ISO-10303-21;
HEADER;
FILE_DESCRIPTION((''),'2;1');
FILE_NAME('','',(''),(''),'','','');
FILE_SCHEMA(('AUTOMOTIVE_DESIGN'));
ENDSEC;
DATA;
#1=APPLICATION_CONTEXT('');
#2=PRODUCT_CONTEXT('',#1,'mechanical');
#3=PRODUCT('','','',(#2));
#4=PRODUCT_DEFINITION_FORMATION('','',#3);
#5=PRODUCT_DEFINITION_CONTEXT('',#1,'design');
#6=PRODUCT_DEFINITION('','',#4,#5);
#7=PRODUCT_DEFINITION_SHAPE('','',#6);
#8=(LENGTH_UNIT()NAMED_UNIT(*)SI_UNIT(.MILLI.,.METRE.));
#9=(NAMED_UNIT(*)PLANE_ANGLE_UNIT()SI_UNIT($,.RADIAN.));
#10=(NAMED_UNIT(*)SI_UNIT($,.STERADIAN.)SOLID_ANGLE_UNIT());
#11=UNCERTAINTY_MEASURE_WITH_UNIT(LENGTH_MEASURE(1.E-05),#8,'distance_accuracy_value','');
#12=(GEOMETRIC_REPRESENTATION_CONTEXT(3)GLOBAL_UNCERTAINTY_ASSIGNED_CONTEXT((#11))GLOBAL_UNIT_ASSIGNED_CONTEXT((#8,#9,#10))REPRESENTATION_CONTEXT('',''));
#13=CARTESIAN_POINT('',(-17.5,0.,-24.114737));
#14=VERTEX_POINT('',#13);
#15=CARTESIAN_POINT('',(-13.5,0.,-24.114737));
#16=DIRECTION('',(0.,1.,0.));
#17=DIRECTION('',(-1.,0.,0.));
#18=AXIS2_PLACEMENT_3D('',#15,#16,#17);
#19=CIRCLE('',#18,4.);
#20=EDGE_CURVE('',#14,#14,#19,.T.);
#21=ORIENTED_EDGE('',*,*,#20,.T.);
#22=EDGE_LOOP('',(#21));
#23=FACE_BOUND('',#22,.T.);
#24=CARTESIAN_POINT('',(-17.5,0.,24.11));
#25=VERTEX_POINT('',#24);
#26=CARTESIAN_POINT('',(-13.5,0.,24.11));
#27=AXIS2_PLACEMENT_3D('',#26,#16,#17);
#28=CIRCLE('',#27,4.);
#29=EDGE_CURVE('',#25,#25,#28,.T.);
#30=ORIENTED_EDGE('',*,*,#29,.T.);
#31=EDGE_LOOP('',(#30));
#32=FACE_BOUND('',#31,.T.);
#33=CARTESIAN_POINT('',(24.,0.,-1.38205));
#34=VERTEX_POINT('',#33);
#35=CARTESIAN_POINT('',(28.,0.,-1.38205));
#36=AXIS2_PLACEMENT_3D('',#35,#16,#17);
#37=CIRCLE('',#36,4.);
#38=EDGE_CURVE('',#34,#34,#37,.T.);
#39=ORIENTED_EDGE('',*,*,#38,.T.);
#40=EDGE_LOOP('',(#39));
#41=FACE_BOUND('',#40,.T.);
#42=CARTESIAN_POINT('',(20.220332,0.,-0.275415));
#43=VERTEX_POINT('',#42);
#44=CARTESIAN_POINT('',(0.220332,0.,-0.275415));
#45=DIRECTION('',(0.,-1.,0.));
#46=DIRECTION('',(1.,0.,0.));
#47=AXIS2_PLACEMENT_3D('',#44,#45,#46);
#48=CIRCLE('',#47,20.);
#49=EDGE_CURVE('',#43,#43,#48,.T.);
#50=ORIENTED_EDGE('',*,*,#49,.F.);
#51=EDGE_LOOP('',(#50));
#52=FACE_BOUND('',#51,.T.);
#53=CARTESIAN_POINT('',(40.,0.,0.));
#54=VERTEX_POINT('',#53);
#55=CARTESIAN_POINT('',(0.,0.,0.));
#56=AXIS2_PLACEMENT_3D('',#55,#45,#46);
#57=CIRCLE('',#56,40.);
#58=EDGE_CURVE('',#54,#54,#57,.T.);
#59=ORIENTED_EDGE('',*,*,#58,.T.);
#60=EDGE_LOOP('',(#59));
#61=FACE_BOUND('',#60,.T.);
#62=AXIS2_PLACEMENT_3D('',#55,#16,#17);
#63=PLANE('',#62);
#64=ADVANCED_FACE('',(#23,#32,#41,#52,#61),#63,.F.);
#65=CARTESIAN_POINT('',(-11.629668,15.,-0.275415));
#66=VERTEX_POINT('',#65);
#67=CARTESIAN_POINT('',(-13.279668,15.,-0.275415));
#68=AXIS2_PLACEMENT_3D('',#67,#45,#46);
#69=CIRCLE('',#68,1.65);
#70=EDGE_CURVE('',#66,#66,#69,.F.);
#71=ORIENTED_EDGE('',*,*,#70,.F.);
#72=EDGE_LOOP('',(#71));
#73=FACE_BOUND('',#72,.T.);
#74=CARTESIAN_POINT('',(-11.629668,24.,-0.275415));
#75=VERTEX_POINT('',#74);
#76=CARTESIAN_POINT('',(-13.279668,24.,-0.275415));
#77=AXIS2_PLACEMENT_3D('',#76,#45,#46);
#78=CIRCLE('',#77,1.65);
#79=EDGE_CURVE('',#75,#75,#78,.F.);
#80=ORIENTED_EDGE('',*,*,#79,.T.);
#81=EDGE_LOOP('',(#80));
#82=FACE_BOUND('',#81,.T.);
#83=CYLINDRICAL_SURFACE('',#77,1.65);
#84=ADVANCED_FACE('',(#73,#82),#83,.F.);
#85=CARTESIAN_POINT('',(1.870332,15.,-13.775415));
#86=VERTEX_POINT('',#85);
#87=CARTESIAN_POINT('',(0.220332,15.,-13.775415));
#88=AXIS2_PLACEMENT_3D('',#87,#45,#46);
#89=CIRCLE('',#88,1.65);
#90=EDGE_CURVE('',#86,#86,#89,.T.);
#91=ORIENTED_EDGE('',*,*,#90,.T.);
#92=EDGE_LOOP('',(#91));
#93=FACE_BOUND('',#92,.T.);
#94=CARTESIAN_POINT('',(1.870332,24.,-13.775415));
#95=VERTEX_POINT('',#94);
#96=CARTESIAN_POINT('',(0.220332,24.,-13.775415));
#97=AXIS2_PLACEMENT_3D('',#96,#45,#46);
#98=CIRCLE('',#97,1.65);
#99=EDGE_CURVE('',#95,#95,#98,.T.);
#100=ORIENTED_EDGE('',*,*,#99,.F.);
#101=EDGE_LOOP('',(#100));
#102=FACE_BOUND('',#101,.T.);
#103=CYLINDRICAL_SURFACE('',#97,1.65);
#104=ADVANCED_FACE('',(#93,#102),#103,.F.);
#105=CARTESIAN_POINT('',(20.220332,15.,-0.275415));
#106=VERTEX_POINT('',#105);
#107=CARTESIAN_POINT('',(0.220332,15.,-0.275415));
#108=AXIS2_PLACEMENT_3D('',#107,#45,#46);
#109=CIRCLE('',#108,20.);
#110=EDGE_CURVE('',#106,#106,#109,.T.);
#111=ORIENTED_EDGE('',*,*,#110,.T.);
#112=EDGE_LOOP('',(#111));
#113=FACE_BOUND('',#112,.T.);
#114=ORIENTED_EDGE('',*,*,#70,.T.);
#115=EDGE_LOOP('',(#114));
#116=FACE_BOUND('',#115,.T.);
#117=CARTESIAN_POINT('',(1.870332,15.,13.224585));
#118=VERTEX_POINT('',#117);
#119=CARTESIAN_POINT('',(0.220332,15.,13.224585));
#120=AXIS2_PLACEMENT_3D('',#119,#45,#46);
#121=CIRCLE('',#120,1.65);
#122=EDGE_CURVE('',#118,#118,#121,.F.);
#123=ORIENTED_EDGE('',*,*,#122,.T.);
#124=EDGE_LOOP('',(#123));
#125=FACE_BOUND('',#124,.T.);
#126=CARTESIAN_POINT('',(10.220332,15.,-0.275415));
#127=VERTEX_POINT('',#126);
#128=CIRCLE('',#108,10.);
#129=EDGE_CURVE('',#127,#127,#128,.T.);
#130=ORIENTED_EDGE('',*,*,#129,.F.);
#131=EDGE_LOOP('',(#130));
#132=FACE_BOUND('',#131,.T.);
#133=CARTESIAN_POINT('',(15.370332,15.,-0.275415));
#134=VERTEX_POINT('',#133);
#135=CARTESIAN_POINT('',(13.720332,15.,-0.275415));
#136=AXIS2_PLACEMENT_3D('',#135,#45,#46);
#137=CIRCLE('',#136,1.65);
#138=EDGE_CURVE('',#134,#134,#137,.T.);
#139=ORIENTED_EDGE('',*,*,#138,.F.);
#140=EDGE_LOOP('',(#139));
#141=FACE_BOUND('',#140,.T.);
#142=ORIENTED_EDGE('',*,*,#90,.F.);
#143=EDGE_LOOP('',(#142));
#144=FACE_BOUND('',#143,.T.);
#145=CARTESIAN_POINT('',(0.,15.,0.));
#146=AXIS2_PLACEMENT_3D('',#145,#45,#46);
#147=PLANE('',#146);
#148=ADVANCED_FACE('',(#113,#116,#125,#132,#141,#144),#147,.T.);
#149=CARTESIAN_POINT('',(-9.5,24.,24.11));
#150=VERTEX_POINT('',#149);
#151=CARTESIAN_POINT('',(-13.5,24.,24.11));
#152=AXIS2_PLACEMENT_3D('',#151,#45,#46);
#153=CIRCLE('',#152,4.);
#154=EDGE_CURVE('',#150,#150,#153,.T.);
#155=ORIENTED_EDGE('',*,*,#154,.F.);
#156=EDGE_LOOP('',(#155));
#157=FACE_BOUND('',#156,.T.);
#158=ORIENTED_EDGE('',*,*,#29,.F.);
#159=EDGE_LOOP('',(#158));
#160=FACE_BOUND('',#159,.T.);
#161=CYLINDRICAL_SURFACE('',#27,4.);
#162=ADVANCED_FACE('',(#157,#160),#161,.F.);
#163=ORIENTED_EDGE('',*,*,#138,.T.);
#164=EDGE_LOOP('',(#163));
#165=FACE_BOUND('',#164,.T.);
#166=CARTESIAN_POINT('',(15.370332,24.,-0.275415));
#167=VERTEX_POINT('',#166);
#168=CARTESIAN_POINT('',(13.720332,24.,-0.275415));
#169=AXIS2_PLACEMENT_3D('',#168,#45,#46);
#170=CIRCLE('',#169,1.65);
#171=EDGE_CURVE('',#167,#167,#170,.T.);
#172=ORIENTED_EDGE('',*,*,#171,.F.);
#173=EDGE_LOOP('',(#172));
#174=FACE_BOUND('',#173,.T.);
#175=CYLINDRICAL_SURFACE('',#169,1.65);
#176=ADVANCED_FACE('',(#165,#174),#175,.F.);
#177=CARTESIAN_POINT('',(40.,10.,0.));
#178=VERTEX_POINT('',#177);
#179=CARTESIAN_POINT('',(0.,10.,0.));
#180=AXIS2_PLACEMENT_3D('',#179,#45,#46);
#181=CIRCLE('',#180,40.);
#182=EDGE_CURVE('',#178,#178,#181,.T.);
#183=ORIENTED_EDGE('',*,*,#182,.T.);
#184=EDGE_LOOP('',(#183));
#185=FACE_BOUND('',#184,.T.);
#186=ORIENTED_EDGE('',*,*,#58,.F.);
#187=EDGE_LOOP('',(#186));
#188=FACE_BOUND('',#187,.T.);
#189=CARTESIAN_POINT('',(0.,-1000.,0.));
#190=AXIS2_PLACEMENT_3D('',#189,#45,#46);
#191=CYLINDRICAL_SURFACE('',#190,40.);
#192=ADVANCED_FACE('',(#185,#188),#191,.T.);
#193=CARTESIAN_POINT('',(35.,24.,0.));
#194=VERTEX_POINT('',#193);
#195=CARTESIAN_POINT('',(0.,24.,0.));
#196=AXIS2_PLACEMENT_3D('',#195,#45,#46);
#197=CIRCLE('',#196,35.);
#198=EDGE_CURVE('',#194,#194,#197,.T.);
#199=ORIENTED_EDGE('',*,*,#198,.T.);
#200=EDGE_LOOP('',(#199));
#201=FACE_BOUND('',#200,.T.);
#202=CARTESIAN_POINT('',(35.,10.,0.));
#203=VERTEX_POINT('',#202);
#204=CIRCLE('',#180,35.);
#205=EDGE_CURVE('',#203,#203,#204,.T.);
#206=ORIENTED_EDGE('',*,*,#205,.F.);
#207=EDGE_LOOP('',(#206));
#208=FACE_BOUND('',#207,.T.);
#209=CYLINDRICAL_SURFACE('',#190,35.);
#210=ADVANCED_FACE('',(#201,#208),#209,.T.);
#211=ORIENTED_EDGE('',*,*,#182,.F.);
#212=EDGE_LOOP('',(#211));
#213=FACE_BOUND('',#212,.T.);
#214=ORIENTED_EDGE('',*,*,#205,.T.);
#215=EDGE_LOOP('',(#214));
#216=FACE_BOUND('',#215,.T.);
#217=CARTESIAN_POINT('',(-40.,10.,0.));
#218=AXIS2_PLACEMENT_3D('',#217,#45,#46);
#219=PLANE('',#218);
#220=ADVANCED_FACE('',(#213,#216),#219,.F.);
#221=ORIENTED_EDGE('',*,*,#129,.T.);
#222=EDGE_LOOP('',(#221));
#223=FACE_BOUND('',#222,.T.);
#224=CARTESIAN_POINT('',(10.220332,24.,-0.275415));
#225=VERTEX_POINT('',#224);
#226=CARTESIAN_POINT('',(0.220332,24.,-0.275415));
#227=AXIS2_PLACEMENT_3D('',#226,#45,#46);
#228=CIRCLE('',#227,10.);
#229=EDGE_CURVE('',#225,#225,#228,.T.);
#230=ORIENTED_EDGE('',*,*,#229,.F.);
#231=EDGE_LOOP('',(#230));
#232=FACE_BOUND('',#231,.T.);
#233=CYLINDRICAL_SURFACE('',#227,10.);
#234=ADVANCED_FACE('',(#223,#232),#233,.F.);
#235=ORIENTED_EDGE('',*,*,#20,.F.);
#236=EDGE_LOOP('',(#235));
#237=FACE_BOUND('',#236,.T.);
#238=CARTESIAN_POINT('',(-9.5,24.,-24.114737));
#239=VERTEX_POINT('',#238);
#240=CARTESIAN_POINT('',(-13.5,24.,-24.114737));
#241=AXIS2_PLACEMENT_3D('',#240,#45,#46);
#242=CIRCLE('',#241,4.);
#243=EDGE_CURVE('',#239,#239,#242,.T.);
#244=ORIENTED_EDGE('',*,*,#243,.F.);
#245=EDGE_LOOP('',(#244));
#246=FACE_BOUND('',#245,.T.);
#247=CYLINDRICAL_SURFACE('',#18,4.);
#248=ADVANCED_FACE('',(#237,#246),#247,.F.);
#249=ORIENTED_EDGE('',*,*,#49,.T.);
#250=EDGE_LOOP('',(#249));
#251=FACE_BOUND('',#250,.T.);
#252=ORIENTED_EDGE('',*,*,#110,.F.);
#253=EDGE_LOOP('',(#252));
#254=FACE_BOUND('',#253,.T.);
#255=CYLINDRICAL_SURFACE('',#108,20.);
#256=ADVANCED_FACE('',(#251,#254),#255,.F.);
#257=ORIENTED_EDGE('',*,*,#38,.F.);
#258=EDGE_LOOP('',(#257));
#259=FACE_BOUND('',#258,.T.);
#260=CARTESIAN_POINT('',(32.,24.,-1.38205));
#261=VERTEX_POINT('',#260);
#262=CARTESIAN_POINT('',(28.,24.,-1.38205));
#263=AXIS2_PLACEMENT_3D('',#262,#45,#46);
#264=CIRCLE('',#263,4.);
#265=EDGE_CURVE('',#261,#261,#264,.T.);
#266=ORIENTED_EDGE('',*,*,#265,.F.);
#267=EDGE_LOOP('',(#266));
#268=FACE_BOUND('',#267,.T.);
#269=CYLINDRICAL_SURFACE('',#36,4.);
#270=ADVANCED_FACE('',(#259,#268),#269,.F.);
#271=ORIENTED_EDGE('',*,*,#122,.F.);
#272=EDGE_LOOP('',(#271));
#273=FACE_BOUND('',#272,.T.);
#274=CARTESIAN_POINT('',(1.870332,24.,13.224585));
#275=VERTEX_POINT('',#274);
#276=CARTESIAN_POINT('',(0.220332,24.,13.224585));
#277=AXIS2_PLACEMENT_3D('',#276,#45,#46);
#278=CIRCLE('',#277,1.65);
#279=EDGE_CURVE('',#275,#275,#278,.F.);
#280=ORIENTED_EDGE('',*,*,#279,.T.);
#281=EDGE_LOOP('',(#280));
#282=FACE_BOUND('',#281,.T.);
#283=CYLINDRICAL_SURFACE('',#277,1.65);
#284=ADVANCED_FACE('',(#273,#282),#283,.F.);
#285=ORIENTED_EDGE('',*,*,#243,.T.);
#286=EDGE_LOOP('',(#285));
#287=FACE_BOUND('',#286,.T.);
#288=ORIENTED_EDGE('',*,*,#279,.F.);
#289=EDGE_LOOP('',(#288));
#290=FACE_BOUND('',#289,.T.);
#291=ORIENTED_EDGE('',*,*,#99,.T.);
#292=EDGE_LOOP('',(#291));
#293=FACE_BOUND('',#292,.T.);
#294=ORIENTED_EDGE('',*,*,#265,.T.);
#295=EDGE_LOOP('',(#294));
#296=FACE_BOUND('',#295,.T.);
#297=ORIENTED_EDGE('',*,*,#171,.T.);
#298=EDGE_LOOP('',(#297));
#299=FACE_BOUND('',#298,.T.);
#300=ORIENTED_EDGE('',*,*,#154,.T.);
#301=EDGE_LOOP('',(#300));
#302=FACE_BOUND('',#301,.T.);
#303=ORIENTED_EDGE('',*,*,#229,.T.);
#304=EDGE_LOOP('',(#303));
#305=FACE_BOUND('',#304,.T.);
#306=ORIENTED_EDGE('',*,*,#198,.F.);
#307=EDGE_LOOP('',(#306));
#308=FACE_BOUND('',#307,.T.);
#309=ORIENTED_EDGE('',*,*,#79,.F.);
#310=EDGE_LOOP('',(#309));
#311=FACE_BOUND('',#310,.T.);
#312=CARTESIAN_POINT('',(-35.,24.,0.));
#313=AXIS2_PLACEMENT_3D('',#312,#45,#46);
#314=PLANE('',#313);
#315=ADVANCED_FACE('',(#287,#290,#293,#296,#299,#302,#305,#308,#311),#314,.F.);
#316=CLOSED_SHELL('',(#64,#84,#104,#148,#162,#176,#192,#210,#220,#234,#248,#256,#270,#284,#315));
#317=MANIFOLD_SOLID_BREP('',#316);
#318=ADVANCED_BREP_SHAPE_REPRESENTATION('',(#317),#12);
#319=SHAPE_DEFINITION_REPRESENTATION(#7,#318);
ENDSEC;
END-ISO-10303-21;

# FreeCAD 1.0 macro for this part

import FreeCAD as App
import Part
import Sketcher

V = App.Vector

doc = App.newDocument("Part")
body = doc.addObject("PartDesign::Body", "Body")

# Sketch on XY plane
sketch1 = body.newObject("Sketcher::SketchObject", "Sketch")
sketch1.AttachmentSupport = (doc.getObject("XY_Plane"), [""])
sketch1.MapMode = "FlatFace"
sketch1.addGeometry([
    Part.LineSegment(V(-35, 10, 0), V(-40, 10, 0)),  # 0
    Part.LineSegment(V(-40, 10, 0), V(-40, 0, 0)),  # 1
    Part.LineSegment(V(-40, 0, 0), V(0, 0, 0)),  # 2
    Part.LineSegment(V(0, 0, 0), V(0, 24, 0)),  # 3
    Part.LineSegment(V(0, 24, 0), V(-35, 24, 0)),  # 4
    Part.LineSegment(V(-35, 24, 0), V(-35, 10, 0)),  # 5
], False)
sketch1.addConstraint([
    Sketcher.Constraint("Coincident", 0, 2, 1, 1),
    Sketcher.Constraint("Coincident", 1, 2, 2, 1),
    Sketcher.Constraint("Coincident", 2, 2, 3, 1),
    Sketcher.Constraint("Coincident", 3, 2, 4, 1),
    Sketcher.Constraint("Coincident", 4, 2, 5, 1),
    Sketcher.Constraint("Coincident", 5, 2, 0, 1),
    Sketcher.Constraint("Horizontal", 0),
    Sketcher.Constraint("Vertical", 1),
    Sketcher.Constraint("Horizontal", 2),
    Sketcher.Constraint("Vertical", 3),
    Sketcher.Constraint("Horizontal", 4),
    Sketcher.Constraint("Vertical", 5),
    Sketcher.Constraint("Coincident", 2, 2, -1, 1),
    Sketcher.Constraint("DistanceX", 0, 2, 0, 1, 5.0),
    Sketcher.Constraint("DistanceX", 2, 1, 2, 2, 40.0),
    Sketcher.Constraint("DistanceY", 1, 2, 1, 1, 10.0),
    Sketcher.Constraint("DistanceY", 3, 1, 3, 2, 24.0),
])
revolution = body.newObject("PartDesign::Revolution", "Revolution")
revolution.Profile = sketch1
revolution.ReferenceAxis = (sketch1, ["V_Axis"])
revolution.Angle = 360

# Sketch on XZ plane
sketch2 = body.newObject("Sketcher::SketchObject", "Sketch001")
sketch2.AttachmentSupport = (doc.getObject("XZ_Plane"), [""])
sketch2.MapMode = "FlatFace"
sketch2.addGeometry([
    Part.Circle(V(0.220332, -0.275415, 0), V(0, 0, 1), 10),  # 0
    Part.Circle(V(13.720332, -0.275415, 0), V(0, 0, 1), 1.65),  # 1
    Part.Circle(V(0.220332, -13.775415, 0), V(0, 0, 1), 1.65),  # 2
    Part.Circle(V(-13.279668, -0.275415, 0), V(0, 0, 1), 1.65),  # 3
    Part.Circle(V(0.220332, 13.224585, 0), V(0, 0, 1), 1.65),  # 4
], False)
sketch2.addConstraint([
    Sketcher.Constraint("Equal", 1, 2),
    Sketcher.Constraint("Equal", 2, 3),
    Sketcher.Constraint("Equal", 3, 4),
    Sketcher.Constraint("Horizontal", 0, 3, 1, 3),
    Sketcher.Constraint("Horizontal", 1, 3, 3, 3),
    Sketcher.Constraint("Vertical", 0, 3, 2, 3),
    Sketcher.Constraint("Vertical", 2, 3, 4, 3),
    Sketcher.Constraint("Diameter", 0, 20.0),
    Sketcher.Constraint("Diameter", 1, 3.3),
    Sketcher.Constraint("DistanceX", 3, 3, 1, 3, 27.0),
    Sketcher.Constraint("DistanceY", 2, 3, 4, 3, 27.0),
    Sketcher.Constraint("DistanceX", 0, 3, 1, 3, 13.5),
    Sketcher.Constraint("DistanceY", 2, 3, 0, 3, 13.5),
    Sketcher.Constraint("DistanceX", -1, 1, 0, 3, 0.220332),
    Sketcher.Constraint("DistanceY", 0, 3, -1, 1, 0.275415),
])
pocket1 = body.newObject("PartDesign::Pocket", "Pocket")
pocket1.Profile = sketch2
pocket1.Type = "ThroughAll"
pocket1.Midplane = True

# Sketch on XZ plane
sketch3 = body.newObject("Sketcher::SketchObject", "Sketch002")
sketch3.AttachmentSupport = (doc.getObject("XZ_Plane"), [""])
sketch3.MapMode = "FlatFace"
sketch3.addGeometry([
    Part.Circle(V(0.220332, -0.275415, 0), V(0, 0, 1), 20),  # 0
    Part.Circle(V(0.220332, -13.775415, 0), V(0, 0, 1), 1.65),  # 1
    Part.Circle(V(-13.279668, -0.275415, 0), V(0, 0, 1), 1.65),  # 2
    Part.Circle(V(0.220332, -0.275415, 0), V(0, 0, 1), 10),  # 3
    Part.Circle(V(13.720332, -0.275415, 0), V(0, 0, 1), 1.65),  # 4
    Part.Circle(V(0.220332, 13.224585, 0), V(0, 0, 1), 1.65),  # 5
], False)
sketch3.addConstraint([
    Sketcher.Constraint("Coincident", 3, 3, 0, 3),
    Sketcher.Constraint("Equal", 1, 2),
    Sketcher.Constraint("Equal", 2, 4),
    Sketcher.Constraint("Equal", 4, 5),
    Sketcher.Constraint("Horizontal", 0, 3, 2, 3),
    Sketcher.Constraint("Horizontal", 3, 3, 4, 3),
    Sketcher.Constraint("Vertical", 0, 3, 1, 3),
    Sketcher.Constraint("Vertical", 3, 3, 5, 3),
    Sketcher.Constraint("Diameter", 0, 40.0),
    Sketcher.Constraint("Diameter", 3, 20.0),
    Sketcher.Constraint("Diameter", 1, 3.3),
    Sketcher.Constraint("DistanceX", 2, 3, 4, 3, 27.0),
    Sketcher.Constraint("DistanceY", 1, 3, 5, 3, 27.0),
    Sketcher.Constraint("DistanceY", 1, 3, 0, 3, 13.5),
    Sketcher.Constraint("DistanceX", 2, 3, 0, 3, 13.5),
    Sketcher.Constraint("DistanceX", -1, 1, 0, 3, 0.220332),
    Sketcher.Constraint("DistanceY", 0, 3, -1, 1, 0.275415),
])
pocket2 = body.newObject("PartDesign::Pocket", "Pocket001")
pocket2.Profile = sketch3
pocket2.Length = 15

# Sketch on XZ plane
sketch4 = body.newObject("Sketcher::SketchObject", "Sketch003")
sketch4.AttachmentSupport = (doc.getObject("XZ_Plane"), [""])
sketch4.MapMode = "FlatFace"
sketch4.AttachmentOffset = App.Placement(V(0, 0, -24), App.Rotation())
sketch4.addGeometry([
    Part.Circle(V(28, -1.38205, 0), V(0, 0, 1), 4),
    Part.Circle(V(-13.5, 24.11, 0), V(0, 0, 1), 4),
    Part.Circle(V(-13.5, -24.114737, 0), V(0, 0, 1), 4),
], False)
sketch4.addConstraint([
    Sketcher.Constraint("Equal", 0, 1),
    Sketcher.Constraint("Equal", 1, 2),
    Sketcher.Constraint("Vertical", 1, 3, 2, 3),
    Sketcher.Constraint("Diameter", 0, 8.0),
    Sketcher.Constraint("DistanceX", -1, 1, 0, 3, 28.0),
    Sketcher.Constraint("DistanceX", 1, 3, -1, 1, 13.5),
    Sketcher.Constraint("DistanceY", -1, 1, 1, 3, 24.11),
    Sketcher.Constraint("DistanceY", 0, 3, -1, 1, 1.38205),
    Sketcher.Constraint("DistanceY", 2, 3, -1, 1, 24.114737),
])
pocket3 = body.newObject("PartDesign::Pocket", "Pocket002")
pocket3.Profile = sketch4
pocket3.Type = "ThroughAll"
pocket3.Midplane = True

doc.recompute()
